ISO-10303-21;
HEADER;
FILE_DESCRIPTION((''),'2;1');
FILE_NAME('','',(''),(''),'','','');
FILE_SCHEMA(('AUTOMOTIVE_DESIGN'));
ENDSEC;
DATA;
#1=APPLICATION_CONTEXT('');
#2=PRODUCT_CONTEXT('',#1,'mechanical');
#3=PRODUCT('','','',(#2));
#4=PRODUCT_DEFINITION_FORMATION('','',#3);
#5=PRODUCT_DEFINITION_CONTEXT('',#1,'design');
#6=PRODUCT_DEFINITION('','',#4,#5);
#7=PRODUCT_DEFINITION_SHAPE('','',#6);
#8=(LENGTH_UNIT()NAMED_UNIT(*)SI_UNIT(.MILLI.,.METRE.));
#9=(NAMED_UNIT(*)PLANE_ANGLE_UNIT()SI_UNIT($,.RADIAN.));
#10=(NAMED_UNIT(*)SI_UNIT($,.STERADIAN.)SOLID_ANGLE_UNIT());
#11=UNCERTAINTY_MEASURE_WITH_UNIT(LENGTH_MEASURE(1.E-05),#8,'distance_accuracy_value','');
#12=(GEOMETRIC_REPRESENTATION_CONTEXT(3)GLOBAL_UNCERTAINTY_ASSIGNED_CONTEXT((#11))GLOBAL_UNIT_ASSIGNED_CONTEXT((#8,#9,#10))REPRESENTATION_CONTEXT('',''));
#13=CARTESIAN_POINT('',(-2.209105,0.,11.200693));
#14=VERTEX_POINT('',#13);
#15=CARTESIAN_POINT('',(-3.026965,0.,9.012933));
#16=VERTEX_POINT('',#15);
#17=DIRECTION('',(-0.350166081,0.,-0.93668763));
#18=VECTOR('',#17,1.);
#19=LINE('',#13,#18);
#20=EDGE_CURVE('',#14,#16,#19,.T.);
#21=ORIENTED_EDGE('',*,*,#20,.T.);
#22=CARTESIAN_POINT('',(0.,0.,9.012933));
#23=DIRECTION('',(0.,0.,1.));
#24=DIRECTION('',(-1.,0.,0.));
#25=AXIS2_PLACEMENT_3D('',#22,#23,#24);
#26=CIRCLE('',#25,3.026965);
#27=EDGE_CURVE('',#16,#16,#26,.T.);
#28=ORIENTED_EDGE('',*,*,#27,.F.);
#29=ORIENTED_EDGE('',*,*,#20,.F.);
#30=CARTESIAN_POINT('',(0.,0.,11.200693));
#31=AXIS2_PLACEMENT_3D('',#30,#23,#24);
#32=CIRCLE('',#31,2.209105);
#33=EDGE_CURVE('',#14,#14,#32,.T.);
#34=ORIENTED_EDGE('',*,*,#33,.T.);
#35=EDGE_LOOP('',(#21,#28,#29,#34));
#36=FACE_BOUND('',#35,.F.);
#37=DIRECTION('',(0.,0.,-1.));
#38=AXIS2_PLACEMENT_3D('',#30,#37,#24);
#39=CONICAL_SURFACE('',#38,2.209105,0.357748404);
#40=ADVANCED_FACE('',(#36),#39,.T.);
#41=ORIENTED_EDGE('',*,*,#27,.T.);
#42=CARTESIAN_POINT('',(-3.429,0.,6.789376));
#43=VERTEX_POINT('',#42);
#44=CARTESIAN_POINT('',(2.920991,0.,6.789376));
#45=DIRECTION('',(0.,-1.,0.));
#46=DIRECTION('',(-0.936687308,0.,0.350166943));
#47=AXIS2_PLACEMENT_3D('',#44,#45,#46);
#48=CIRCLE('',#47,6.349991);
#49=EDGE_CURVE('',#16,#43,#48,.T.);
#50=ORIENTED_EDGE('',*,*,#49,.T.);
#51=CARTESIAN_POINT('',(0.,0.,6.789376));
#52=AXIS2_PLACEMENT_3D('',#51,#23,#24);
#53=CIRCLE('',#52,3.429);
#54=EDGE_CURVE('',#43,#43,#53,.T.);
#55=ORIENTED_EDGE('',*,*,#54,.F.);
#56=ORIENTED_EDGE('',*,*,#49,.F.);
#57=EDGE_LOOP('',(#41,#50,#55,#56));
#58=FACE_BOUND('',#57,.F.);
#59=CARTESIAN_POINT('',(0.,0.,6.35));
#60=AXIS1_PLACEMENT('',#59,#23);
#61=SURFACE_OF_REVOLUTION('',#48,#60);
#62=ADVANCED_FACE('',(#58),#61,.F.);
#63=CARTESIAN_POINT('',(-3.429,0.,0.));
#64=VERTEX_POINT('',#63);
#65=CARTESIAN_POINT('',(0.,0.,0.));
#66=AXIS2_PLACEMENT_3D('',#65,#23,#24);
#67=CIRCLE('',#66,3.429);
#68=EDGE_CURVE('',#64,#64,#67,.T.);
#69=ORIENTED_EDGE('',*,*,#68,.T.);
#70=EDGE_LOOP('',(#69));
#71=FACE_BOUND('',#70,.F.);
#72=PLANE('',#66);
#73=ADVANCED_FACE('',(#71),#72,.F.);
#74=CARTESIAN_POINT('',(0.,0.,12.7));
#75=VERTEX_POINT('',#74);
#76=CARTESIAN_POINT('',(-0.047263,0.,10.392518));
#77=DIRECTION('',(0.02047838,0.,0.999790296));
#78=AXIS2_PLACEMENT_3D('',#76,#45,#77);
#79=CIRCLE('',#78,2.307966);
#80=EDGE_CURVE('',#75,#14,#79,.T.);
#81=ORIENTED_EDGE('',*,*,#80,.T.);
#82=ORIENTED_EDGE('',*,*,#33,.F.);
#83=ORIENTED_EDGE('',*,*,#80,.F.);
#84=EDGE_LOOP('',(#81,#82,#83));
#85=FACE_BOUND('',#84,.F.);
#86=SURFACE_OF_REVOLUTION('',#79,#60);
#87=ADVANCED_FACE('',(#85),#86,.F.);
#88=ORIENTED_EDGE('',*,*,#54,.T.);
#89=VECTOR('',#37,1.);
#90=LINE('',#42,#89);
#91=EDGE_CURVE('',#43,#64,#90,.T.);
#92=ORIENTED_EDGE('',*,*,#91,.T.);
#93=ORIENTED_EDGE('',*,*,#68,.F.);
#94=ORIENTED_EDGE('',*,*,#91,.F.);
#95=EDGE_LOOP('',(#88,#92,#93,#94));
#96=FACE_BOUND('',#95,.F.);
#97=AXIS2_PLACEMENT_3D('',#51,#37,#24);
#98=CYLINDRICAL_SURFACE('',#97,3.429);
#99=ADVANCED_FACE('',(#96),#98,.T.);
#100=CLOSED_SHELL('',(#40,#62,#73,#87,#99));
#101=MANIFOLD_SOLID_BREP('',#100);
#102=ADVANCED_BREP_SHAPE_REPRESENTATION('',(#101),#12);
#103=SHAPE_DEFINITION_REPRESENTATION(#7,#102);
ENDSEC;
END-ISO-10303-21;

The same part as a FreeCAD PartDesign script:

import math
import FreeCAD as App
import Part
import Sketcher
Q = App.Units.Quantity

doc = App.newDocument("Part")
params = doc.addObject("Spreadsheet::Sheet", "Params")
for row, (alias, value) in enumerate([
    ("sketch1_height", "0.5 in"),
    ("sketch1_width", "0.135 in"),
    ("revolution_angle", "360 deg"),
], start=1):
    params.set(f"A{row}", alias)
    params.set(f"B{row}", "=" + value)
    params.setAlias(f"B{row}", alias)

body = doc.addObject("PartDesign::Body", "Body")

# Sketch on XZ plane
sketch1 = body.newObject("Sketcher::SketchObject", "Sketch")
sketch1.AttachmentSupport = (doc.getObject("XZ_Plane"), [""])
sketch1.MapMode = "FlatFace"
sketch1.addGeometry([
    Part.LineSegment(App.Vector(-3.429, 0, 0), App.Vector(0, 0, 0)),  # 0
    Part.LineSegment(App.Vector(0, 0, 0), App.Vector(0, 12.7, 0)),  # 1
    Part.ArcOfCircle(Part.Circle(App.Vector(-0.047263, 10.392518, 0), App.Vector(0, 0, 1), 2.307966), math.radians(88.826593), math.radians(159.502437)),  # 2
    Part.LineSegment(App.Vector(-2.209105, 11.200693, 0), App.Vector(-3.026965, 9.012933, 0)),  # 3
    Part.ArcOfCircle(Part.Circle(App.Vector(2.920991, 6.789376, 0), App.Vector(0, 0, 1), 6.349991), math.radians(159.502474), math.radians(180.000002)),  # 4
    Part.LineSegment(App.Vector(-3.429, 6.789376, 0), App.Vector(-3.429, 0, 0)),  # 5
], False)
sketch1.addConstraint([
    Sketcher.Constraint("Coincident", 0, 2, 1, 1),
    Sketcher.Constraint("Coincident", 1, 2, 2, 1),
    Sketcher.Constraint("Coincident", 2, 2, 3, 1),
    Sketcher.Constraint("Coincident", 3, 2, 4, 1),
    Sketcher.Constraint("Coincident", 4, 2, 5, 1),
    Sketcher.Constraint("Coincident", 5, 2, 0, 1),
    Sketcher.Constraint("Horizontal", 0),
    Sketcher.Constraint("Vertical", 1),
    Sketcher.Constraint("Vertical", 5),
    Sketcher.Constraint("Coincident", 0, 2, -1, 1),
    Sketcher.Constraint("DistanceY", 1, 1, 1, 2, Q("0.5 in")),
    Sketcher.Constraint("DistanceX", 0, 1, 0, 2, Q("0.135 in")),
    Sketcher.Constraint("Radius", 4, 6.349991),
    Sketcher.Constraint("Radius", 2, 2.307966),
    Sketcher.Constraint("DistanceX", 3, 2, 2, 3, 2.979702),
    Sketcher.Constraint("DistanceY", 5, 2, 5, 1, 6.789376),
    Sketcher.Constraint("DistanceY", -1, 1, 2, 3, 10.392518),
    Sketcher.Constraint("DistanceX", 2, 2, 2, 3, 2.161842),
    Sketcher.Constraint("DistanceY", 3, 2, 2, 2, 2.18776),
])
sketch1.setExpression("Constraints[10]", "Params.sketch1_height")
sketch1.setExpression("Constraints[11]", "Params.sketch1_width")
revolution = body.newObject("PartDesign::Revolution", "Revolution")
revolution.Profile = sketch1
revolution.ReferenceAxis = (sketch1, ["V_Axis"])
revolution.setExpression("Angle", "Params.revolution_angle")

doc.recompute()
